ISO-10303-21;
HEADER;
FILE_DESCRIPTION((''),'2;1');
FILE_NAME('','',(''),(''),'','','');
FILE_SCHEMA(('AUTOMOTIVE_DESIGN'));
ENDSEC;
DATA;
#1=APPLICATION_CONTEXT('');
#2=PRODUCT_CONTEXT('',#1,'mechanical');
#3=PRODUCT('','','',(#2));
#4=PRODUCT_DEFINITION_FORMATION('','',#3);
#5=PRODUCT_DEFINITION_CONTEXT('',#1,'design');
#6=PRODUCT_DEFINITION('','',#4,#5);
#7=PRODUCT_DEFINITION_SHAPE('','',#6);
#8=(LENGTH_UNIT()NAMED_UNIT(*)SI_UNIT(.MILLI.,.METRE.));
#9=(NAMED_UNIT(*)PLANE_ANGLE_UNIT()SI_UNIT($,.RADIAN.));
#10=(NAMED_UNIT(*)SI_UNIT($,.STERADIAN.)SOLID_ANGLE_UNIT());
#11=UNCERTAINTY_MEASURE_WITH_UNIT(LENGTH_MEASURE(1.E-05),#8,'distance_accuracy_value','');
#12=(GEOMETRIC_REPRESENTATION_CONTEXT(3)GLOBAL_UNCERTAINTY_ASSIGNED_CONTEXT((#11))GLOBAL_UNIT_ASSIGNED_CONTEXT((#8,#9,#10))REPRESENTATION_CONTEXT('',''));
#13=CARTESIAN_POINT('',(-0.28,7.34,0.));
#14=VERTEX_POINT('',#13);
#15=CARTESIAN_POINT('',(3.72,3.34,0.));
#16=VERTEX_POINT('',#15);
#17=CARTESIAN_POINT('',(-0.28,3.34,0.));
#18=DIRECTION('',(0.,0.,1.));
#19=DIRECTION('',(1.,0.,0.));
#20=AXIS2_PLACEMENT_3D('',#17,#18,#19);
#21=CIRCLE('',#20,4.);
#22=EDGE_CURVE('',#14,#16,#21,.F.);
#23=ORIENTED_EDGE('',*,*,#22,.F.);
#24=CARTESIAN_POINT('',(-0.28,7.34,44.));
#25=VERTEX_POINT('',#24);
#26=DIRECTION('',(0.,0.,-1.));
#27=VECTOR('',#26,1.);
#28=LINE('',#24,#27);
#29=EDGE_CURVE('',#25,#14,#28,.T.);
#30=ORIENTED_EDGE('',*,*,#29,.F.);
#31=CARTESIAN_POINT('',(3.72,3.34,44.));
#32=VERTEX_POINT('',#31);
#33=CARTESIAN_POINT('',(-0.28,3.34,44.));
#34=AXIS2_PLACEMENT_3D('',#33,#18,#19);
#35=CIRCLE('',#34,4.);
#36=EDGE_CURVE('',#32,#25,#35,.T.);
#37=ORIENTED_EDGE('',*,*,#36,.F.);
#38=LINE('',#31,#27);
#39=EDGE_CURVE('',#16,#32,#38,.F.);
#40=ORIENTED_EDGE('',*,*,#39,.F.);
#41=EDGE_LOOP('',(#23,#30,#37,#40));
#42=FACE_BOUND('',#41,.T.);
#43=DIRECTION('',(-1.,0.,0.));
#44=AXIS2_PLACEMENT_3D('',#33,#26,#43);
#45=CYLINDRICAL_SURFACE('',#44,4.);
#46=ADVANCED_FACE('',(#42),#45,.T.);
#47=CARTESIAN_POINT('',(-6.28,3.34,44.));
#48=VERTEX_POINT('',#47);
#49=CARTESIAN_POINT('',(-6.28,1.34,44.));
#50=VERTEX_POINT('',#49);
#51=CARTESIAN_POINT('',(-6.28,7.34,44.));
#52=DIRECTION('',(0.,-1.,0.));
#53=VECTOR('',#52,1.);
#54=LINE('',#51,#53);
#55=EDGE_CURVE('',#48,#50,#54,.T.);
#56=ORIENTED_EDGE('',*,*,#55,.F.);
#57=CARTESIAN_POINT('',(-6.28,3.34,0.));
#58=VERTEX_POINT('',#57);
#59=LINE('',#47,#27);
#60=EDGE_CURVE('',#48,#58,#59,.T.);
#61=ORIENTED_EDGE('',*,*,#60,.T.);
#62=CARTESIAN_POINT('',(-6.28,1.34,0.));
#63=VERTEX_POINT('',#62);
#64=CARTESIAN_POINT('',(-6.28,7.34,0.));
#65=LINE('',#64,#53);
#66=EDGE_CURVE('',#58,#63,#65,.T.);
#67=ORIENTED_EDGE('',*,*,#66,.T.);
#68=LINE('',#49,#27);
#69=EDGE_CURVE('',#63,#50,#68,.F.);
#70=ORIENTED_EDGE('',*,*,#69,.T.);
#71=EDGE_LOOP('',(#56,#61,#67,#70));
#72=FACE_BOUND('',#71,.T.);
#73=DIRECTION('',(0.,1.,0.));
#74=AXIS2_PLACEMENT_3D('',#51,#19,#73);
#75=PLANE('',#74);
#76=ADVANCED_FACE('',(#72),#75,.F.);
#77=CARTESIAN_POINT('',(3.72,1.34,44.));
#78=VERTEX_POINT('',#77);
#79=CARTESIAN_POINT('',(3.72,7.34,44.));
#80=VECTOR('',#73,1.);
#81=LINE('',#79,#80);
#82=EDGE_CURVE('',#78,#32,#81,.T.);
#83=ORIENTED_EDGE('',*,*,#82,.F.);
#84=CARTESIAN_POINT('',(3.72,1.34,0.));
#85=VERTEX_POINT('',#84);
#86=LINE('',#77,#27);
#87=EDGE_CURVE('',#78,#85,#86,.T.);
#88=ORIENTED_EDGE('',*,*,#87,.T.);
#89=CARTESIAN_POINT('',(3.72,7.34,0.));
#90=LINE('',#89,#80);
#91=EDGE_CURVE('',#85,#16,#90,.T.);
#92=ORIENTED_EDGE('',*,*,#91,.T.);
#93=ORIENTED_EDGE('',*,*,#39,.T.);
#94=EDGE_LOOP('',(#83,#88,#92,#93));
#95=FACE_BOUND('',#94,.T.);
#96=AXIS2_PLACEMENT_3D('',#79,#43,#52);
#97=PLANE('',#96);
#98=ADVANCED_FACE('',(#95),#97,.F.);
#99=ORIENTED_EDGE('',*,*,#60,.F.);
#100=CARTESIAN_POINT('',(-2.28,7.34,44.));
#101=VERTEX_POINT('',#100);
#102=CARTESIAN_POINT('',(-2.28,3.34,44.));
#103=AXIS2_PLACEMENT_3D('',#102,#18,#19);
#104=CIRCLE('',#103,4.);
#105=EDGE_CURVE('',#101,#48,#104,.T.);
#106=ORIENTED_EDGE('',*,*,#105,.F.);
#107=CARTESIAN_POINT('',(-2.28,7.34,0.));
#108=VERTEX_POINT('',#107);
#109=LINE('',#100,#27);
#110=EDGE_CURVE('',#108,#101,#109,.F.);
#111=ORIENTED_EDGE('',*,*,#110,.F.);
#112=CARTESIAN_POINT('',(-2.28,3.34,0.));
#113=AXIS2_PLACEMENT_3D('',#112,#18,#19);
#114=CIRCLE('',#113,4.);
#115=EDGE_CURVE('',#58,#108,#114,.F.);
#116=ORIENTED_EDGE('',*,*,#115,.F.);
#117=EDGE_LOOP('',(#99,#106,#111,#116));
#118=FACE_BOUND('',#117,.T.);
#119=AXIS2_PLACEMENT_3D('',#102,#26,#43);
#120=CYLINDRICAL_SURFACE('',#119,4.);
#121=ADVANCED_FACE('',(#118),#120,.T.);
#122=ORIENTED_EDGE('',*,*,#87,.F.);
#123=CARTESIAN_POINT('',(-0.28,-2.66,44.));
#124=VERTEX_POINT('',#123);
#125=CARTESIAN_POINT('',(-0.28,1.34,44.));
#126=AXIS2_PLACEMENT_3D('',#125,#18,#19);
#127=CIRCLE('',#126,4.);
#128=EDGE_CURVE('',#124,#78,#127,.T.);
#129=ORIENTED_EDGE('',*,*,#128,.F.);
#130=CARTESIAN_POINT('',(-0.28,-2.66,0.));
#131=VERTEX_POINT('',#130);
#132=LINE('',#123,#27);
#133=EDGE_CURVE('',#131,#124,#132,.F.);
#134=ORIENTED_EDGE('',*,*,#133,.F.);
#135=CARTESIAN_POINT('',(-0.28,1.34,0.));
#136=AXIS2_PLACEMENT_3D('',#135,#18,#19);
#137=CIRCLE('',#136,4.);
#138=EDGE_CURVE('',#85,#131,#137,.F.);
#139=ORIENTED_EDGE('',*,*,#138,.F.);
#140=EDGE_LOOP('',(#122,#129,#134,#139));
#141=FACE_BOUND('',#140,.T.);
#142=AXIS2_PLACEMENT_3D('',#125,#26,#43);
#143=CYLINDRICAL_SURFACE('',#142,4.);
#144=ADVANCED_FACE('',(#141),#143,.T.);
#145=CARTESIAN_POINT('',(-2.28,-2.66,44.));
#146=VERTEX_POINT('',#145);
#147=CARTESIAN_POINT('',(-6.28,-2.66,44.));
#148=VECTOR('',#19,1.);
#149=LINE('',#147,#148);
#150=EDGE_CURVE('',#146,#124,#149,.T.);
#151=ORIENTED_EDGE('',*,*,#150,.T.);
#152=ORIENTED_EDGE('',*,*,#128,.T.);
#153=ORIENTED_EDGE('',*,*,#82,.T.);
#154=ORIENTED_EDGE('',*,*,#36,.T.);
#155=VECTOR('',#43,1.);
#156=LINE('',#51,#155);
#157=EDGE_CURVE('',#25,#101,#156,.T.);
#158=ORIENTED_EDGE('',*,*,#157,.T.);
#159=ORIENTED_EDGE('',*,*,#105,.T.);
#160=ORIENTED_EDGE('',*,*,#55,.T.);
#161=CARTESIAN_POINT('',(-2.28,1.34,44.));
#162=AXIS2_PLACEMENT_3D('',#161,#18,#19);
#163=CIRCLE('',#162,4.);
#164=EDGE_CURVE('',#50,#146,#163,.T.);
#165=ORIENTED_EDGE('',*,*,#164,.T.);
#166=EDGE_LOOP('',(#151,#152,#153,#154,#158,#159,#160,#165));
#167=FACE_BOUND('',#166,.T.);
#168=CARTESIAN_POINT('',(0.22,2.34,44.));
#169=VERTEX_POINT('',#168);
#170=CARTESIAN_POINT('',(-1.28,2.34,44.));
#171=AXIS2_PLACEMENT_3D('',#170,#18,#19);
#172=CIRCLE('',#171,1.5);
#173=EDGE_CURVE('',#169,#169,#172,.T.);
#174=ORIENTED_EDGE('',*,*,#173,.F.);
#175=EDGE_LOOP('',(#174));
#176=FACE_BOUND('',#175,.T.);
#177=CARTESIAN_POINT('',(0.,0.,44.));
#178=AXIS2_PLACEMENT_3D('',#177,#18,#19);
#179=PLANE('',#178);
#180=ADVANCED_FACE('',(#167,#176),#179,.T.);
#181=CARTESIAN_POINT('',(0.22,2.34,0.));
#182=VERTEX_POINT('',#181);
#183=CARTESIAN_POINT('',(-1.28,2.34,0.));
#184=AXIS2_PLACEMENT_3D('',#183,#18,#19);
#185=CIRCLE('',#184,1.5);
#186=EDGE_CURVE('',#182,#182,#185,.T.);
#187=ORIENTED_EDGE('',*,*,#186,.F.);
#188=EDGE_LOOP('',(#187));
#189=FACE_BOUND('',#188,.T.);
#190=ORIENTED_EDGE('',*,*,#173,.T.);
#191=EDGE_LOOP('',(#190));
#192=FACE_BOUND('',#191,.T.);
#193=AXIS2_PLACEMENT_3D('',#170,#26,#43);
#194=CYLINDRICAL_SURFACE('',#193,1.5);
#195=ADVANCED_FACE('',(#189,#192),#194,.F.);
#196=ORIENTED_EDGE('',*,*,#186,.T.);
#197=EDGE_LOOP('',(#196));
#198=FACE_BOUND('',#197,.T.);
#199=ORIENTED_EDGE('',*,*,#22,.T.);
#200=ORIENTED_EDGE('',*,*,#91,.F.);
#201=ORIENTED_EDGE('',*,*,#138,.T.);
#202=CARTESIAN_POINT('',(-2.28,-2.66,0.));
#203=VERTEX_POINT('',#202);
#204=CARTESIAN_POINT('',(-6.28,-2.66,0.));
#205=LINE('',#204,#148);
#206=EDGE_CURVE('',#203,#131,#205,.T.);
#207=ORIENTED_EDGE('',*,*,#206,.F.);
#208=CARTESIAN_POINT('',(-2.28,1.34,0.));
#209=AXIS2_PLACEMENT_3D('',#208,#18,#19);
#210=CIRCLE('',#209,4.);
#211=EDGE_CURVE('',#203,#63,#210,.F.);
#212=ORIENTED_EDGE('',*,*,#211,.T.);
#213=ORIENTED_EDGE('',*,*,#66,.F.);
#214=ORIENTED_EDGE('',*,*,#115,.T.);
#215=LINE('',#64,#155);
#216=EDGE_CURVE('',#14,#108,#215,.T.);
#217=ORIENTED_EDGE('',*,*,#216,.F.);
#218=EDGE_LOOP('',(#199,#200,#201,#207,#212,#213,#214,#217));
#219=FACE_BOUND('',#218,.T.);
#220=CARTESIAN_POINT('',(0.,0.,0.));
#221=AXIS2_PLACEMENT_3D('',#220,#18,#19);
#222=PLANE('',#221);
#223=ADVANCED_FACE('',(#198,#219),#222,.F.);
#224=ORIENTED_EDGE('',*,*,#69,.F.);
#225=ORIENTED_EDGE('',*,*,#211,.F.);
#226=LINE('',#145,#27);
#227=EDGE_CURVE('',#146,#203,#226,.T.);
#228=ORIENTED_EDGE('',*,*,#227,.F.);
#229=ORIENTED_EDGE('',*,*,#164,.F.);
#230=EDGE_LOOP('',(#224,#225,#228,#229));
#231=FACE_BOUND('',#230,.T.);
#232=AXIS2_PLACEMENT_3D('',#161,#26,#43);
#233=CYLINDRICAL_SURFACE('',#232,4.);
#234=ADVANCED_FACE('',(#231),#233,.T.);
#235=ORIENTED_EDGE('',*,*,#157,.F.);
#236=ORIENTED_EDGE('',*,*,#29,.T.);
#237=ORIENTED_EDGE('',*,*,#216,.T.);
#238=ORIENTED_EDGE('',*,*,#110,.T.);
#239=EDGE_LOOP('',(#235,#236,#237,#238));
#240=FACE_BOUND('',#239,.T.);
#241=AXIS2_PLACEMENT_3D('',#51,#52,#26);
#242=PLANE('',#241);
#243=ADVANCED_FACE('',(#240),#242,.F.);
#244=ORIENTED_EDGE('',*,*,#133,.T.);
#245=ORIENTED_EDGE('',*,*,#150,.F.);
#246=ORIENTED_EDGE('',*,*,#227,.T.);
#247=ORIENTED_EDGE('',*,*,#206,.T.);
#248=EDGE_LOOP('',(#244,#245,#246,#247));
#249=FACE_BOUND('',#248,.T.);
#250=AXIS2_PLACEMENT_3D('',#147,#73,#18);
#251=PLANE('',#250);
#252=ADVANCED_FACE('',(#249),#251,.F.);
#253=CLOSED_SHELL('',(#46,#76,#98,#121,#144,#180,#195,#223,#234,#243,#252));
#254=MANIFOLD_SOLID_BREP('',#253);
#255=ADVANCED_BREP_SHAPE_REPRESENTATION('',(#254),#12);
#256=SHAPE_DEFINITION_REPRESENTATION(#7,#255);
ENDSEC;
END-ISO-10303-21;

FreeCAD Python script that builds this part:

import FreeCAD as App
import Part
import Sketcher

V = App.Vector
Q = App.Units.Quantity


def edges_at(feature, points):
    """Names of the edges that pass closest to the given points."""
    edges = feature.Shape.Edges
    near = lambda p: min(range(len(edges)), key=lambda i: edges[i].distToShape(Part.Vertex(*p))[0])
    return sorted({f"Edge{near(p) + 1}" for p in points})


def add_polygon(sketch, points):
    """Adds a closed chain of lines whose ends are joined by coincident constraints."""
    first, n = sketch.GeometryCount, len(points)
    for a, b in zip(points, points[1:] + points[:1]):
        sketch.addGeometry(Part.LineSegment(App.Vector(*a, 0), App.Vector(*b, 0)), False)
    for i in range(n):
        sketch.addConstraint(Sketcher.Constraint("Coincident", first + i, 2, first + (i + 1) % n, 1))

doc = App.newDocument("Part")
body = doc.addObject("PartDesign::Body", "Body")

sketch1 = body.newObject("Sketcher::SketchObject", "Sketch")
sketch1.AttachmentSupport = (doc.getObject("XY_Plane"), [""])
sketch1.MapMode = "FlatFace"
add_polygon(sketch1, [(-6.28, 7.34), (-6.28, -2.66), (3.72, -2.66), (3.72, 7.34)])
sketch1.addGeometry(Part.Circle(V(-1.28, 2.34, 0), V(0, 0, 1), 1.5), False)
sketch1.addConstraint([
    Sketcher.Constraint("Vertical", 0),
    Sketcher.Constraint("Horizontal", 1),
    Sketcher.Constraint("Vertical", 2),
    Sketcher.Constraint("Horizontal", 3),
    Sketcher.Constraint("Equal", 3, 0),
    Sketcher.Constraint("Diameter", 4, Q("3 mm")),
    Sketcher.Constraint("DistanceX", 1, 1, 1, 2, Q("10 mm")),
    Sketcher.Constraint("DistanceX", 0, 2, 4, 3, Q("5 mm")),
    Sketcher.Constraint("DistanceY", 0, 2, 4, 3, Q("5 mm")),
    Sketcher.Constraint("DistanceX", 4, 3, -1, 1, Q("1.28 mm")),
    Sketcher.Constraint("DistanceY", -1, 1, 4, 3, Q("2.34 mm")),
])
pad1 = body.newObject("PartDesign::Pad", "Pad")
pad1.Profile = sketch1
pad1.Length = 44
doc.recompute()

fillet = body.newObject("PartDesign::Fillet", "Fillet")
fillet.Base = (pad1, edges_at(pad1, [
    (3.72, -2.66, 22),
    (-6.28, -2.66, 22),
    (-6.28, 7.34, 22),
    (3.72, 7.34, 22),
]))
fillet.Radius = 4

doc.recompute()
